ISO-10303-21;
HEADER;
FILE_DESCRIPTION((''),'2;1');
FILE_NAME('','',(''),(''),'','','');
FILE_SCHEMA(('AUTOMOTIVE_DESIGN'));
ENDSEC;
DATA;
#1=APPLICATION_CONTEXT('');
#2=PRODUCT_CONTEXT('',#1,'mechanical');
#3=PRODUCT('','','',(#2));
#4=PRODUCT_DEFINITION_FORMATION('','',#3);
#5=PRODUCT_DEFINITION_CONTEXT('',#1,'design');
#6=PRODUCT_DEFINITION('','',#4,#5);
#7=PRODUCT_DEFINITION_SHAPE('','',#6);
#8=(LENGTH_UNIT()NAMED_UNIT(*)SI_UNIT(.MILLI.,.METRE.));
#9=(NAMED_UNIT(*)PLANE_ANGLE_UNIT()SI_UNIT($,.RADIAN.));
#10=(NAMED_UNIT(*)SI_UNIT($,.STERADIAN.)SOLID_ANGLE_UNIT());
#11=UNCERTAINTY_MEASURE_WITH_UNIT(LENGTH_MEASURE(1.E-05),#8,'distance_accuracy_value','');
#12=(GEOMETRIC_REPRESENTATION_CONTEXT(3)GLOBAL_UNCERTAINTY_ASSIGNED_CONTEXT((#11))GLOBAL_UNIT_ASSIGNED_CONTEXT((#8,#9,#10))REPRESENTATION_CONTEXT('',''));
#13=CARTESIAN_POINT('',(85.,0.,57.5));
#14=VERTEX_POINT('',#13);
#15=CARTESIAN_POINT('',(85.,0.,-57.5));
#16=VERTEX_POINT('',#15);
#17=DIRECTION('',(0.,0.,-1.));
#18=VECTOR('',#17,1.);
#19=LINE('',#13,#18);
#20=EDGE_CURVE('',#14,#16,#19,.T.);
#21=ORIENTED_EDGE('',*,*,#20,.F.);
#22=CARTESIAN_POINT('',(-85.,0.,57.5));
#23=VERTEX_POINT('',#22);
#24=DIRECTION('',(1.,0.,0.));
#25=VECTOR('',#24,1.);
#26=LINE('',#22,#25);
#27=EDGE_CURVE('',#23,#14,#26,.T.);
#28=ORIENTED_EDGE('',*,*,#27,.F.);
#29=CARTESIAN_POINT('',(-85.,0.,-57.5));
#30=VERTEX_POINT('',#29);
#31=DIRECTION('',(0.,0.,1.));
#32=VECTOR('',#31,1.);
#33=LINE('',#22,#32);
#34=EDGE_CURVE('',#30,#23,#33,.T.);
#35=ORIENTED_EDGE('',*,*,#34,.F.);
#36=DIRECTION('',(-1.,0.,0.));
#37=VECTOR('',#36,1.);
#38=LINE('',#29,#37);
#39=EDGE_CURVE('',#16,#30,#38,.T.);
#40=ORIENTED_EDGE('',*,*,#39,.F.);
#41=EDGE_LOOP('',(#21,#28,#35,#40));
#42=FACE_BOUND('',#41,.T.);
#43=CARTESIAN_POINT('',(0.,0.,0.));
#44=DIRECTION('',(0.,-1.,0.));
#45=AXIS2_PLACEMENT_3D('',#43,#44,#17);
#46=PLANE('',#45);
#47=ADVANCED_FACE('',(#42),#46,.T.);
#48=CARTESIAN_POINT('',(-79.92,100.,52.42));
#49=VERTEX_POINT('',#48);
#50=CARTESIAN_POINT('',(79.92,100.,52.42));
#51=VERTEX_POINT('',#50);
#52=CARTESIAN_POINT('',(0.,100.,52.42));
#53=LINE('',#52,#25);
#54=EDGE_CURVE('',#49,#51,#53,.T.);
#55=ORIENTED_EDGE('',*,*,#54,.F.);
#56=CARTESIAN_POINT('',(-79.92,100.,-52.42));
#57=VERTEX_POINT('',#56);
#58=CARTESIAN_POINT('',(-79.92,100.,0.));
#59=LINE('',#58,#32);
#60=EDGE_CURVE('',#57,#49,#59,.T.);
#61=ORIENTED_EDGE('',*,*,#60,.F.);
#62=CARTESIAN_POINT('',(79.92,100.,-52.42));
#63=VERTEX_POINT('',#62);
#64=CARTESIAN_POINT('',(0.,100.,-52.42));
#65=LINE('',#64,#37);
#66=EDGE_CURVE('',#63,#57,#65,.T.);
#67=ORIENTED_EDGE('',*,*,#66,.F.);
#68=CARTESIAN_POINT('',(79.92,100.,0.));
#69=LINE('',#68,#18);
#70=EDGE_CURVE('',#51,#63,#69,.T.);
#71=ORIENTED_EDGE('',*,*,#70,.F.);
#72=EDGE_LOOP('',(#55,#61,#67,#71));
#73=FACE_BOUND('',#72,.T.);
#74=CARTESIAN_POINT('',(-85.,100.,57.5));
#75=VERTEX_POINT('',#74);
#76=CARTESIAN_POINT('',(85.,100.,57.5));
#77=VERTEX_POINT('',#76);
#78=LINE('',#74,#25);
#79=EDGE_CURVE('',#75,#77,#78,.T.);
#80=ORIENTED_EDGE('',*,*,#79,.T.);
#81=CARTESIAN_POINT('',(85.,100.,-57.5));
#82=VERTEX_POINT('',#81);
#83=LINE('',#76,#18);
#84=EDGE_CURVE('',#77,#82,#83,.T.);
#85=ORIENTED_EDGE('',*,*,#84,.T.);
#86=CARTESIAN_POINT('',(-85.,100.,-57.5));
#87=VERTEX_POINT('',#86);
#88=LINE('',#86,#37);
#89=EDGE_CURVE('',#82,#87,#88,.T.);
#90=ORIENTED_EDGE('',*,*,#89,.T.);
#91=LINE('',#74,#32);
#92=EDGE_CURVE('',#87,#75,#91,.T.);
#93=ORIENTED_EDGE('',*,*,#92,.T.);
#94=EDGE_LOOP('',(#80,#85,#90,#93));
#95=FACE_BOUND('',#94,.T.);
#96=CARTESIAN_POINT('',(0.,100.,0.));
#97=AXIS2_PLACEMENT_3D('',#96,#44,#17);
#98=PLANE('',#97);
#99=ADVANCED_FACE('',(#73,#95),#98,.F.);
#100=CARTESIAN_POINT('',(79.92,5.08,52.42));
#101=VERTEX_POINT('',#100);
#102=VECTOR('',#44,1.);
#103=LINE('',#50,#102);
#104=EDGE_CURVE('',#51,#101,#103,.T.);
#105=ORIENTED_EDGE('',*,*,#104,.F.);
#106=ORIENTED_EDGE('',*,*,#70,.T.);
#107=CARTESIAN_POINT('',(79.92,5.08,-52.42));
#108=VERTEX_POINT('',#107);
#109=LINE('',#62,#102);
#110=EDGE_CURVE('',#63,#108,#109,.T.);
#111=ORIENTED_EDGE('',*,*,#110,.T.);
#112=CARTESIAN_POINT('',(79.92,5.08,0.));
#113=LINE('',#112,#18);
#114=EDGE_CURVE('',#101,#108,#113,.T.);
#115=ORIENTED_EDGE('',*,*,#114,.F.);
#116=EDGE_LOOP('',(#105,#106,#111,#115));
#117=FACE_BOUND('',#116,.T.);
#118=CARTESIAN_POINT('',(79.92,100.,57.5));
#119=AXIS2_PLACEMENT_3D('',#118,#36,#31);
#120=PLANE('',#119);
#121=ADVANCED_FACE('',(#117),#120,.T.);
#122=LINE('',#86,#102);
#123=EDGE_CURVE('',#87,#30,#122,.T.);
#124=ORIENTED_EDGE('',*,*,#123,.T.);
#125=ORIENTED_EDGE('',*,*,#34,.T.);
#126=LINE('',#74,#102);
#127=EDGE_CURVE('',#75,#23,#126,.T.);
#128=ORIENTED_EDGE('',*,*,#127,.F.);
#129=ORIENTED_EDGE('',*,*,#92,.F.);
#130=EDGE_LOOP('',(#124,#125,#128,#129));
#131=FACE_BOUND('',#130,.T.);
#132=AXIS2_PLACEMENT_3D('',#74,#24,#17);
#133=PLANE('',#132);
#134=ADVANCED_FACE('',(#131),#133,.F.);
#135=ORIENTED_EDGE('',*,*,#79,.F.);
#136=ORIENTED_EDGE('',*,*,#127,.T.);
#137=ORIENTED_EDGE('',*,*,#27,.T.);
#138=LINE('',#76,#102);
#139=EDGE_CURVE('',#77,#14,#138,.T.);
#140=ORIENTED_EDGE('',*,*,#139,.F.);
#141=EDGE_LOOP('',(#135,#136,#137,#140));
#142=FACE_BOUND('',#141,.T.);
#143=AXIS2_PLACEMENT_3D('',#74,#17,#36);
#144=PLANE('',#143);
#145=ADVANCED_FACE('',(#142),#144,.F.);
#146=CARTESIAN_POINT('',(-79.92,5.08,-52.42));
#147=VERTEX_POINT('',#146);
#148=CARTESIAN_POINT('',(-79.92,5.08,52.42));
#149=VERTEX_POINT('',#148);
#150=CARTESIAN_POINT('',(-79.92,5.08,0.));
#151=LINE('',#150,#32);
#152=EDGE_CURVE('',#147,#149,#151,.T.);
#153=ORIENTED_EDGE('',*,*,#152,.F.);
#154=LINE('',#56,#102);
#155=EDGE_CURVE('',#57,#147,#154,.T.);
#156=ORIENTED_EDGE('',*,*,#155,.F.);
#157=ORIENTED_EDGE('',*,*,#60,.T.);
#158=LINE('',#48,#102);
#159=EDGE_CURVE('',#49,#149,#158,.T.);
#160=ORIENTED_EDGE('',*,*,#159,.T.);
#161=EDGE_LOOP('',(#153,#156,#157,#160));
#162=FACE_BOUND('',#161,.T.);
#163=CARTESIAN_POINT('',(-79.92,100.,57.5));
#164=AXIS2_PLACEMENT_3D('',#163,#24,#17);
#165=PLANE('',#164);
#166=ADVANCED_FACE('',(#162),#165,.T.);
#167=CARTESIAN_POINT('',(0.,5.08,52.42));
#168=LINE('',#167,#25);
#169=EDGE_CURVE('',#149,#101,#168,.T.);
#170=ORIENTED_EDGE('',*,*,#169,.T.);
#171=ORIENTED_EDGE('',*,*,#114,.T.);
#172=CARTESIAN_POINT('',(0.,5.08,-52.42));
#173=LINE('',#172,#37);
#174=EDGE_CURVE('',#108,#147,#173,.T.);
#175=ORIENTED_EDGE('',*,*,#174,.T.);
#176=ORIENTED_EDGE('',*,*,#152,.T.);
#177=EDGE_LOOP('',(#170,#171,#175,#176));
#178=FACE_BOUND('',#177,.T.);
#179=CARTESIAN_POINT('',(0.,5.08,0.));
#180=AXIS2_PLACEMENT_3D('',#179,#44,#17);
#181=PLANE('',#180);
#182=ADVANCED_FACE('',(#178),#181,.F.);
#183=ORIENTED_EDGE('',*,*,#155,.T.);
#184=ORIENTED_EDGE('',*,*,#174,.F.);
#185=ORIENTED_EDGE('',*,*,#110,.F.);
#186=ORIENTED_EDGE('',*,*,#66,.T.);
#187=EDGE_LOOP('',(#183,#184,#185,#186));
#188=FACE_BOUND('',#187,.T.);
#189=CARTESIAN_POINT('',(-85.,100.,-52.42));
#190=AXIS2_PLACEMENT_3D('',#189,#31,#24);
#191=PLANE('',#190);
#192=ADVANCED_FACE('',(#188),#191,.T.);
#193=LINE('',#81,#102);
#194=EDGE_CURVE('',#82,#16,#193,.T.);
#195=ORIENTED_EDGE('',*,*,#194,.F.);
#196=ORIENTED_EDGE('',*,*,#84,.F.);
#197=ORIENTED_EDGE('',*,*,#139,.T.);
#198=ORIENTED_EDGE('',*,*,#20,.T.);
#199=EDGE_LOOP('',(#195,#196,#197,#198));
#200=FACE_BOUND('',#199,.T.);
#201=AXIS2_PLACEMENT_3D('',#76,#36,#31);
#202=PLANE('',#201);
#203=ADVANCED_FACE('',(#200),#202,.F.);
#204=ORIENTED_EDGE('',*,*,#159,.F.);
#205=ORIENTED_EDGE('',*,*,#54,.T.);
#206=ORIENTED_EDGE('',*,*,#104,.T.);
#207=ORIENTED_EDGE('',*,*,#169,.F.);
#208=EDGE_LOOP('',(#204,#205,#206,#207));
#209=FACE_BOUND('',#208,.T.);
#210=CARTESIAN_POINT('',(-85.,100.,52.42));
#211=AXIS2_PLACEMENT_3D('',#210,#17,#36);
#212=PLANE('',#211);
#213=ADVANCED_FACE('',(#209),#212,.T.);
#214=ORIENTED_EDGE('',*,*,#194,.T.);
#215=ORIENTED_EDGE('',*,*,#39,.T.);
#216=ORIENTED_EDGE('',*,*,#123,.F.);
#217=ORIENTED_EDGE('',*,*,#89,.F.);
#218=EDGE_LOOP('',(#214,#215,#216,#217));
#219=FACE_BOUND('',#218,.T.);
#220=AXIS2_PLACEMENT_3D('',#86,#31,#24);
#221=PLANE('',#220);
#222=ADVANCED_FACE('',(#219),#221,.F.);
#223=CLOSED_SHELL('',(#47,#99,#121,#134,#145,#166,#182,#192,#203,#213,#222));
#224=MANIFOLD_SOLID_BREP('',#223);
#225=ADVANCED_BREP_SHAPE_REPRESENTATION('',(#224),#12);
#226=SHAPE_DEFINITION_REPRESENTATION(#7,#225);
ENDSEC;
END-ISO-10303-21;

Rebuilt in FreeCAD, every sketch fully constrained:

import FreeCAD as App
import Part
import Sketcher

V = App.Vector


def faces_at(feature, points):
    """Names of the faces that lie closest to the given points."""
    faces = feature.Shape.Faces
    near = lambda p: min(range(len(faces)), key=lambda i: faces[i].distToShape(Part.Vertex(*p))[0])
    return sorted({f"Face{near(p) + 1}" for p in points})

doc = App.newDocument("Part")
body = doc.addObject("PartDesign::Body", "Body")

# Sketch on XZ plane
sketch1 = body.newObject("Sketcher::SketchObject", "Sketch")
sketch1.AttachmentSupport = (doc.getObject("XZ_Plane"), [""])
sketch1.MapMode = "FlatFace"
sketch1.addGeometry([
    Part.LineSegment(V(-85, -58, 0), V(-85, 58, 0)),
    Part.LineSegment(V(-85, 58, 0), V(85, 58, 0)),
    Part.LineSegment(V(85, 58, 0), V(85, -58, 0)),
    Part.LineSegment(V(85, -58, 0), V(-85, -58, 0)),
], False)
sketch1.addConstraint([
    Sketcher.Constraint("Coincident", 0, 2, 1, 1),
    Sketcher.Constraint("Coincident", 1, 2, 2, 1),
    Sketcher.Constraint("Coincident", 2, 2, 3, 1),
    Sketcher.Constraint("Coincident", 3, 2, 0, 1),
    Sketcher.Constraint("Vertical", 0),
    Sketcher.Constraint("Horizontal", 1),
    Sketcher.Constraint("Vertical", 2),
    Sketcher.Constraint("Horizontal", 3),
    Sketcher.Constraint("Symmetric", 0, 2, 2, 2, -1, 1),
    Sketcher.Constraint("DistanceX", 1, 1, 1, 2, 170.0),
    Sketcher.Constraint("DistanceY", 0, 1, 0, 2, 115.0),
])
pad1 = body.newObject("PartDesign::Pad", "Pad")
pad1.Profile = sketch1
pad1.Length = 100
pad1.Reversed = True
doc.recompute()

thickness = body.newObject("PartDesign::Thickness", "Thickness")
thickness.Base = (pad1, faces_at(pad1, [(0, 100, 0)]))
thickness.Value = 5.08
thickness.Reversed = True
thickness.Join = "Intersection"

doc.recompute()
